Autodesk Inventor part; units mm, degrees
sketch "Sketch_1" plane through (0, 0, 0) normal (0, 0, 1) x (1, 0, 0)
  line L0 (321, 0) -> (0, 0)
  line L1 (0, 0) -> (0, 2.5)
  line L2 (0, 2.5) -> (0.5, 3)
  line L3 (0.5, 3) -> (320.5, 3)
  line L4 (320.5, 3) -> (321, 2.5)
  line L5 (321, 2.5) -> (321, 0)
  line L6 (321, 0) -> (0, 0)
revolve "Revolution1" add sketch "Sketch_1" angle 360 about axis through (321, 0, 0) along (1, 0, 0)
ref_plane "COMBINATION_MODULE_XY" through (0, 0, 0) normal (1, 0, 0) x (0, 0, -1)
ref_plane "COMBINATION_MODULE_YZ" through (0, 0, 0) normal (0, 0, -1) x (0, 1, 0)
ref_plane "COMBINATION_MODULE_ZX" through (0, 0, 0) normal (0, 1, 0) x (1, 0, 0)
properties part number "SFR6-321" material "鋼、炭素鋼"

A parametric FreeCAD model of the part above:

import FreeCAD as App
import Part
import Sketcher

doc = App.newDocument("Part")
params = doc.addObject("Spreadsheet::Sheet", "Params")
for row, (alias, value) in enumerate([
    ("sketch1_width", "321 mm"),
    ("sketch1_width2", "320 mm"),
    ("sketch1_height", "2.5 mm"),
    ("revolution_angle", "360 deg"),
], start=1):
    params.set(f"A{row}", alias)
    params.set(f"B{row}", "=" + value)
    params.setAlias(f"B{row}", alias)

body = doc.addObject("PartDesign::Body", "Body")

# Sketch on XY plane
sketch1 = body.newObject("Sketcher::SketchObject", "Sketch")
sketch1.AttachmentSupport = (doc.getObject("XY_Plane"), [""])
sketch1.MapMode = "FlatFace"
sketch1.addGeometry([
    Part.LineSegment(App.Vector(0, 0, 0), App.Vector(321, 0, 0)),  # 0
    Part.LineSegment(App.Vector(321, 0, 0), App.Vector(321, 2.5, 0)),  # 1
    Part.LineSegment(App.Vector(321, 2.5, 0), App.Vector(320.5, 3, 0)),  # 2
    Part.LineSegment(App.Vector(320.5, 3, 0), App.Vector(0.5, 3, 0)),  # 3
    Part.LineSegment(App.Vector(0.5, 3, 0), App.Vector(0, 2.5, 0)),  # 4
    Part.LineSegment(App.Vector(0, 2.5, 0), App.Vector(0, 0, 0)),  # 5
], False)
sketch1.addConstraint([
    Sketcher.Constraint("Coincident", 0, 2, 1, 1),
    Sketcher.Constraint("Coincident", 1, 2, 2, 1),
    Sketcher.Constraint("Coincident", 2, 2, 3, 1),
    Sketcher.Constraint("Coincident", 3, 2, 4, 1),
    Sketcher.Constraint("Coincident", 4, 2, 5, 1),
    Sketcher.Constraint("Coincident", 5, 2, 0, 1),
    Sketcher.Constraint("Horizontal", 0),
    Sketcher.Constraint("Vertical", 1),
    Sketcher.Constraint("Horizontal", 3),
    Sketcher.Constraint("Vertical", 5),
    Sketcher.Constraint("Coincident", 5, 2, -1, 1),
    Sketcher.Constraint("Perpendicular", 2, 4),
    Sketcher.Constraint("Horizontal", 1, 2, 4, 2),
    Sketcher.Constraint("Equal", 2, 4),
    Sketcher.Constraint("DistanceX", 0, 1, 0, 2, 321.0),
    Sketcher.Constraint("DistanceX", 3, 2, 3, 1, 320.0),
    Sketcher.Constraint("DistanceY", 1, 1, 1, 2, 2.5),
])
sketch1.setExpression("Constraints[14]", "Params.sketch1_width")
sketch1.setExpression("Constraints[15]", "Params.sketch1_width2")
sketch1.setExpression("Constraints[16]", "Params.sketch1_height")
revolution = body.newObject("PartDesign::Revolution", "Revolution")
revolution.Profile = sketch1
revolution.ReferenceAxis = (sketch1, ["H_Axis"])
revolution.setExpression("Angle", "Params.revolution_angle")

doc.recompute()
